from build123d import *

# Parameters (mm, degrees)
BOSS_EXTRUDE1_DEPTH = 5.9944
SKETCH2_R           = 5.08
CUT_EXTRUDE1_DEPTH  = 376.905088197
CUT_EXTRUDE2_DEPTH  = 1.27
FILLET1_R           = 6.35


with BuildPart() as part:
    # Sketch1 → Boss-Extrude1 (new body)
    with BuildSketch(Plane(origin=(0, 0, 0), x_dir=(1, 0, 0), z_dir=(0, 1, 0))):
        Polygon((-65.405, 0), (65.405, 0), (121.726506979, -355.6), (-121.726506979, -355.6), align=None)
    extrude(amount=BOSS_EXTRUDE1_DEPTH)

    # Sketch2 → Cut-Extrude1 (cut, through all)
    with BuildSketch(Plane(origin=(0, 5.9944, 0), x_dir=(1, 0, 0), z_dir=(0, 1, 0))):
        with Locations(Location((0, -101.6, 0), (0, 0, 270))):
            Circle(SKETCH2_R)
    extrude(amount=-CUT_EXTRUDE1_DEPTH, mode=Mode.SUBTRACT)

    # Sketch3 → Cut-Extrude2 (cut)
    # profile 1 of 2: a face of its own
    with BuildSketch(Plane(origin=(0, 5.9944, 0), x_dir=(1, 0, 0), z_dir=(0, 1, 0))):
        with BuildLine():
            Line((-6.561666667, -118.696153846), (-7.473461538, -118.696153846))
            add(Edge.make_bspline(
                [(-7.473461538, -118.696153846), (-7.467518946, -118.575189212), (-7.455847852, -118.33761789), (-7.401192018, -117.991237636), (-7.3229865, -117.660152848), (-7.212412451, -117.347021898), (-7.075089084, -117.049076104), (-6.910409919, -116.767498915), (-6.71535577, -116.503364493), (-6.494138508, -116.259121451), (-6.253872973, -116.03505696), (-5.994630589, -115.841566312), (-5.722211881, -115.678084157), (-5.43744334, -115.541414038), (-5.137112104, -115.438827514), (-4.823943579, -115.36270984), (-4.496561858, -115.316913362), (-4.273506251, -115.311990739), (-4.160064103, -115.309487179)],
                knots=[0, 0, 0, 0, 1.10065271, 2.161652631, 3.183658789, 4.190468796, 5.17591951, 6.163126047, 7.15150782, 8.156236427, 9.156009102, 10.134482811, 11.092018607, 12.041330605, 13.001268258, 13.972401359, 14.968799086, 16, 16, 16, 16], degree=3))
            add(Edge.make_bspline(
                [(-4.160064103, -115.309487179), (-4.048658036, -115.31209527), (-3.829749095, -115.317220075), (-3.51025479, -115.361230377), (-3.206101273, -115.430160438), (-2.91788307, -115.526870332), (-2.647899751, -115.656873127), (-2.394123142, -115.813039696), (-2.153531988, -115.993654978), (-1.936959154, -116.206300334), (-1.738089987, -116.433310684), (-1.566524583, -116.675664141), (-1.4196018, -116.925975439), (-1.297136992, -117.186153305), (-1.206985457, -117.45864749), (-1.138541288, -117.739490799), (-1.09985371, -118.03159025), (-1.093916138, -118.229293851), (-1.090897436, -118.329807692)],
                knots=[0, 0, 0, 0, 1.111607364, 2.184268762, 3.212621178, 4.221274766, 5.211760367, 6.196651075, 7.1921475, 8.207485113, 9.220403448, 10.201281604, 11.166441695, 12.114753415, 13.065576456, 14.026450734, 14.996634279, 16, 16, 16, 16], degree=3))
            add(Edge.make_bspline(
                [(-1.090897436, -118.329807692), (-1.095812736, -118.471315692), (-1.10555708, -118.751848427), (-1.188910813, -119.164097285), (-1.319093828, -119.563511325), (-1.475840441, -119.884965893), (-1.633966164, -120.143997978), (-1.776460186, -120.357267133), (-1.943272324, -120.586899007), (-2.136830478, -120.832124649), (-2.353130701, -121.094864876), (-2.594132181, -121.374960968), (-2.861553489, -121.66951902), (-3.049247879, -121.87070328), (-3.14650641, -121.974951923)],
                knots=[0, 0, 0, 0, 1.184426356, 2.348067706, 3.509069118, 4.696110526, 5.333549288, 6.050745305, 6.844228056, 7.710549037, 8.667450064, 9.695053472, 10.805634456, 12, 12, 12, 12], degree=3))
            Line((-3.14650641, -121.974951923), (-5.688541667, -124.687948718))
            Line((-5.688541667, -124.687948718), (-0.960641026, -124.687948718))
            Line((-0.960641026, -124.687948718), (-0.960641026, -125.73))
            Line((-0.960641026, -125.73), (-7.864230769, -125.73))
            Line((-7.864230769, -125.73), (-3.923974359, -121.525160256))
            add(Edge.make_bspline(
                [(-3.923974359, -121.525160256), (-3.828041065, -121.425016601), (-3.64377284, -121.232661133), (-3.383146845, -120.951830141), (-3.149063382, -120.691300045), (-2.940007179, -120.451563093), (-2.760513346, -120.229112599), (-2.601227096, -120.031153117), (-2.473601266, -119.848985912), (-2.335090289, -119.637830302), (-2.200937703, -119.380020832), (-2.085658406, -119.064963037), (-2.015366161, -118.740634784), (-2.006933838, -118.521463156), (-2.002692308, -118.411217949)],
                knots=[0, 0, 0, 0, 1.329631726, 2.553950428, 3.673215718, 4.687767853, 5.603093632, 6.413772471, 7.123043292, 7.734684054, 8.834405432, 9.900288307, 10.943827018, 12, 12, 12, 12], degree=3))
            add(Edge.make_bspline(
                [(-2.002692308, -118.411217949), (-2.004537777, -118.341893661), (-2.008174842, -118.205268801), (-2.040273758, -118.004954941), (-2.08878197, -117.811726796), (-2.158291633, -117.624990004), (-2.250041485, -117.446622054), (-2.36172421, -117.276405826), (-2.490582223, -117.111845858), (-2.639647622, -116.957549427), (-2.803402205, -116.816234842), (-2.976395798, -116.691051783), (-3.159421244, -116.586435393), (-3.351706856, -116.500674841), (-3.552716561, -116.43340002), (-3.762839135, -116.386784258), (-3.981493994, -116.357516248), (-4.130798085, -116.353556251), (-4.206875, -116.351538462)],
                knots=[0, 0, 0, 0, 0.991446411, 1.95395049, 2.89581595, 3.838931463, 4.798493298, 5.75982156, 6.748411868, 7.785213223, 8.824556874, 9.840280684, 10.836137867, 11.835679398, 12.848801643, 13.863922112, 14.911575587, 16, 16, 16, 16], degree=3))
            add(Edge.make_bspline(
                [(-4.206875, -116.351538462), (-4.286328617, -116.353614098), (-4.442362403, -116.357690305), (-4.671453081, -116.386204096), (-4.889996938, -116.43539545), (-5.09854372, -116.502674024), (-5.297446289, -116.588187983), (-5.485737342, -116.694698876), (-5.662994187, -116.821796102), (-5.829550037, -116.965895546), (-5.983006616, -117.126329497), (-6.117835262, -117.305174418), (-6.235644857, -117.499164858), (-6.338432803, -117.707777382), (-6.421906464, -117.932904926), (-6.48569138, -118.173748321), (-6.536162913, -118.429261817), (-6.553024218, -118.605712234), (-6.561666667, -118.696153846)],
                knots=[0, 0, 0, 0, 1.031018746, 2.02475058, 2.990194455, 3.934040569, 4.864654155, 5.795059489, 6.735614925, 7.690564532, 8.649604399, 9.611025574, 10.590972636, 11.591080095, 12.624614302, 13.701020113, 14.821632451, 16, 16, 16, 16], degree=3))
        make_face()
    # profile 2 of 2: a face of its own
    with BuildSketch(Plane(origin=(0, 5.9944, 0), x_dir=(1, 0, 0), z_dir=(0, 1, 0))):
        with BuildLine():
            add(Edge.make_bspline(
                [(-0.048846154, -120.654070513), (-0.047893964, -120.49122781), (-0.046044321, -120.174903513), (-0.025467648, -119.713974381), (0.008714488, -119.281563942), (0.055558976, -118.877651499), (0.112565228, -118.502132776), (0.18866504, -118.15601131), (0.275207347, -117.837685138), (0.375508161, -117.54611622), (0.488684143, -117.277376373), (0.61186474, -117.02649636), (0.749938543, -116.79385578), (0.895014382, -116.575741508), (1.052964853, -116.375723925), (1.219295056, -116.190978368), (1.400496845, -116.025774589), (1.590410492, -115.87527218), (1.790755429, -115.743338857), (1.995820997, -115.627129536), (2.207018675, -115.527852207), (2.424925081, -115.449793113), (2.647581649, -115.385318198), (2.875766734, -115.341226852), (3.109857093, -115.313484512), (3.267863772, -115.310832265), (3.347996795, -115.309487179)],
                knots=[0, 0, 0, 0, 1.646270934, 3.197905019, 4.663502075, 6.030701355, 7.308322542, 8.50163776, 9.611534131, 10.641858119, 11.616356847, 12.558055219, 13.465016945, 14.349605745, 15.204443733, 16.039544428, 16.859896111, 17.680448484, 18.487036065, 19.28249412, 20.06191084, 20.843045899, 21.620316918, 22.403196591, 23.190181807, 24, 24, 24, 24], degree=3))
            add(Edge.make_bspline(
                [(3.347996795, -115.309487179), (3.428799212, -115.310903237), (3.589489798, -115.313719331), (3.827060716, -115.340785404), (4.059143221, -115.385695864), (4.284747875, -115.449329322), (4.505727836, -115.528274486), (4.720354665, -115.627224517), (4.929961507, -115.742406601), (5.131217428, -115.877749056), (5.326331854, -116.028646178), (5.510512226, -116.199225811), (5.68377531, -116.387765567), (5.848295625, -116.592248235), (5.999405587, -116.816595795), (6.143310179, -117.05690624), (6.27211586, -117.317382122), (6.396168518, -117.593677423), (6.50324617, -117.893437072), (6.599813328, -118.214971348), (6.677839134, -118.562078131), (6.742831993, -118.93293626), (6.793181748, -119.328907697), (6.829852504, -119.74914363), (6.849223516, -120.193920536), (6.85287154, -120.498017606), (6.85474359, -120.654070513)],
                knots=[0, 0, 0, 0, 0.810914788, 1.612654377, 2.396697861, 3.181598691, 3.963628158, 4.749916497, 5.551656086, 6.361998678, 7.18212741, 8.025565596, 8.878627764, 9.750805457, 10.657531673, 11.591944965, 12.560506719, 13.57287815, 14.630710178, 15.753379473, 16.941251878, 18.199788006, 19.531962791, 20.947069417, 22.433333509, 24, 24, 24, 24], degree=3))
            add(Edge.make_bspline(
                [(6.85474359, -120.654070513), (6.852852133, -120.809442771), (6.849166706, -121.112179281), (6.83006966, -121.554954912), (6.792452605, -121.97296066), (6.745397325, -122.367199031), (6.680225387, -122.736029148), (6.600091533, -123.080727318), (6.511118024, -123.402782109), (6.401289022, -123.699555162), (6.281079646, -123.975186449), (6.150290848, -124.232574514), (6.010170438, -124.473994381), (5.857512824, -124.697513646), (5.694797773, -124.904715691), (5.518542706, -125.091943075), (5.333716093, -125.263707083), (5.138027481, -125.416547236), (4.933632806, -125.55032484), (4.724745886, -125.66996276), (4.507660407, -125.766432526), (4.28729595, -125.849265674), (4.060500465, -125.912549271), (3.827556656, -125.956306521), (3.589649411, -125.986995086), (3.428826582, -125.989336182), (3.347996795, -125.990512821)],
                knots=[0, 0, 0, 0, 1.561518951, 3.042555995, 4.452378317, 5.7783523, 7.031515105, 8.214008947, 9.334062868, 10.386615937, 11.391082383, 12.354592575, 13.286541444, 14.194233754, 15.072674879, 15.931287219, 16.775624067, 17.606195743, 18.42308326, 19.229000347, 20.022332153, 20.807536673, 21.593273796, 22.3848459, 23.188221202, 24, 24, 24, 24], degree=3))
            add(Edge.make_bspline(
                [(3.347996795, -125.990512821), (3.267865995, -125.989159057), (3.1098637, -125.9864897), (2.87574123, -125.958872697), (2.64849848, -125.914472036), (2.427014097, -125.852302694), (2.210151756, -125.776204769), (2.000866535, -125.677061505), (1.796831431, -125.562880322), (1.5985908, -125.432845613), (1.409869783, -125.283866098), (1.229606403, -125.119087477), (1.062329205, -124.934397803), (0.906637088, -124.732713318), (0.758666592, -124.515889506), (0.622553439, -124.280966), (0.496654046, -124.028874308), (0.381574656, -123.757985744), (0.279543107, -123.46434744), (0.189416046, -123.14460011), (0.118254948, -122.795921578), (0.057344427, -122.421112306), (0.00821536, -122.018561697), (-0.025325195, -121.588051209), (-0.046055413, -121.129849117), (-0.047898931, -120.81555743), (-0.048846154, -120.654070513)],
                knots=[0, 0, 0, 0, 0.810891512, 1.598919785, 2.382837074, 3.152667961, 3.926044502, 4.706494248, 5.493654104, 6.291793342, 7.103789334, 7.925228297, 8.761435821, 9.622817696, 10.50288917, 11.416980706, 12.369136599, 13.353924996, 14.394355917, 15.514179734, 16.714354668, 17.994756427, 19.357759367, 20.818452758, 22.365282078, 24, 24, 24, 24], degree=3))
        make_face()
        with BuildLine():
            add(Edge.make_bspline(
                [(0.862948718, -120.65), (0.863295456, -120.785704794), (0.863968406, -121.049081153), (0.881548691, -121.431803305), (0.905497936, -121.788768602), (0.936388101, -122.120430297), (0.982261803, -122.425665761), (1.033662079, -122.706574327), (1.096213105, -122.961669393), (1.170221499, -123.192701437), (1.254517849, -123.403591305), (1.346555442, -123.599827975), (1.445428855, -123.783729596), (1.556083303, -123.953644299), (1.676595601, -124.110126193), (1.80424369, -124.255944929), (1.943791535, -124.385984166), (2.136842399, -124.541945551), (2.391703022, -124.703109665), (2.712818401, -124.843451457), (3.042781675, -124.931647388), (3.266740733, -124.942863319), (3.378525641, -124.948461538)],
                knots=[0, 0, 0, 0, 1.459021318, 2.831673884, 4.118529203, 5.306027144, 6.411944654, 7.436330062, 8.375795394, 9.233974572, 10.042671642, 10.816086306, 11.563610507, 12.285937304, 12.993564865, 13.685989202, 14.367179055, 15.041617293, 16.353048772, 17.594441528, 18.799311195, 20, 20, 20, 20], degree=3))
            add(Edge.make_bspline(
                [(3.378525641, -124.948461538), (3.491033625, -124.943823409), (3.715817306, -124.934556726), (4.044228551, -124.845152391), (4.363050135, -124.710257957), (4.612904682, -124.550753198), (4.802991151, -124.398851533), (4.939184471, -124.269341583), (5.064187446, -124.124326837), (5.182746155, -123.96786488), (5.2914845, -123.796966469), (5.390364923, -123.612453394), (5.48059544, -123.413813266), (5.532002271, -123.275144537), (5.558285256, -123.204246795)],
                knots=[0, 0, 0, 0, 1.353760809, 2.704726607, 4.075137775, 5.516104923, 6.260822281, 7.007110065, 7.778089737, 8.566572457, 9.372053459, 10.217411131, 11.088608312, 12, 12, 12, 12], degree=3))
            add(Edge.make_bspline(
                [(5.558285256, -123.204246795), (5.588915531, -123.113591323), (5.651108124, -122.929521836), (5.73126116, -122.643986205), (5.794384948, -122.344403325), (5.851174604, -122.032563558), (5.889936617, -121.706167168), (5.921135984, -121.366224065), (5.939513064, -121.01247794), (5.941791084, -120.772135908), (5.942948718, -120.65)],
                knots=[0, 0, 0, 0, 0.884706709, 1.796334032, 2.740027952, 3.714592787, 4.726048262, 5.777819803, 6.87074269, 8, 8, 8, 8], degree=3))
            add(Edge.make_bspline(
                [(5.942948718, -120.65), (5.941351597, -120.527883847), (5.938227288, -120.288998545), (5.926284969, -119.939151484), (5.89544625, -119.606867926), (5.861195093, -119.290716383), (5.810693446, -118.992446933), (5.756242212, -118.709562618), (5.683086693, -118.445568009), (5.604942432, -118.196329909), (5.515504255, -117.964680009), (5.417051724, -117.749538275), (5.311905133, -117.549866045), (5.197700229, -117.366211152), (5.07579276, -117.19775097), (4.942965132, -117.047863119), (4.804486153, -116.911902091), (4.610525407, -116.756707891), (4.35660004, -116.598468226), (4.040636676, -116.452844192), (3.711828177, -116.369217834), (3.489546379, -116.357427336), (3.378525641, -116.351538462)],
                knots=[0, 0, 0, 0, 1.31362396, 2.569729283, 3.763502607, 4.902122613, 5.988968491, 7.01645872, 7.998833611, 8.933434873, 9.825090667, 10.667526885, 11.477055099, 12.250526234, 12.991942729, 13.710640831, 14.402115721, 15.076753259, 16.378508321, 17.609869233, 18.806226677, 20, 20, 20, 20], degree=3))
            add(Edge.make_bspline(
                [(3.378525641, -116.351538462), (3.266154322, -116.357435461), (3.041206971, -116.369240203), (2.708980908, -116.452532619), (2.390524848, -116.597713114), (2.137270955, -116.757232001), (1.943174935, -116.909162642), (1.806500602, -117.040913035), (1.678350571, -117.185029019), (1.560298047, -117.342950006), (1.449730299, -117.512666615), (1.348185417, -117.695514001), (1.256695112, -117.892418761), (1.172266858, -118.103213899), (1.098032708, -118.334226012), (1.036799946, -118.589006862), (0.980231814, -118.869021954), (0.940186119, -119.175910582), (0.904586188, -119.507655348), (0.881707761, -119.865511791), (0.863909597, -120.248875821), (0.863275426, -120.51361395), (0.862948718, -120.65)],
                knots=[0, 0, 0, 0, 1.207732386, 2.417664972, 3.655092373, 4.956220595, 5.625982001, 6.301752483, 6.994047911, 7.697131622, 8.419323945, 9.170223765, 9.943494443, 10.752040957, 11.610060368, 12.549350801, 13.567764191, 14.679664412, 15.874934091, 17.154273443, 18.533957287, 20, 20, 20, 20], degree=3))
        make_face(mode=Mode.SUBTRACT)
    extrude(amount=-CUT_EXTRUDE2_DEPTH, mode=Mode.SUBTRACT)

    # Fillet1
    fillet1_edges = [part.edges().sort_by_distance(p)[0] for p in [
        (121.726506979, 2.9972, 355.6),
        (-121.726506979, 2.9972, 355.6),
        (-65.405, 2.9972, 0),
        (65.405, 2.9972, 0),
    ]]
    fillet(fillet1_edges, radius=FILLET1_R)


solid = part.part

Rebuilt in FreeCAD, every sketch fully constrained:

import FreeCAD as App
import Part
import Sketcher

V = App.Vector
Q = App.Units.Quantity


def edges_at(feature, points):
    """Names of the edges that pass closest to the given points."""
    edges = feature.Shape.Edges
    near = lambda p: min(range(len(edges)), key=lambda i: edges[i].distToShape(Part.Vertex(*p))[0])
    return sorted({f"Edge{near(p) + 1}" for p in points})


def add_polygon(sketch, points):
    """Adds a closed chain of lines whose ends are joined by coincident constraints."""
    first, n = sketch.GeometryCount, len(points)
    for a, b in zip(points, points[1:] + points[:1]):
        sketch.addGeometry(Part.LineSegment(App.Vector(*a, 0), App.Vector(*b, 0)), False)
    for i in range(n):
        sketch.addConstraint(Sketcher.Constraint("Coincident", first + i, 2, first + (i + 1) % n, 1))

doc = App.newDocument("Part")
body = doc.addObject("PartDesign::Body", "Body")

# Sketch on XZ plane
sketch1 = doc.addObject("Sketcher::SketchObject", "Sketch")
body.addObject(sketch1)
sketch1.AttachmentSupport = (doc.XZ_Plane, [""])
sketch1.MapMode = "FlatFace"
add_polygon(sketch1, [(65, 0), (-65, 0), (-122, 356), (122, 356)])  # lines 0-3
sketch1.addConstraint([
    Sketcher.Constraint("Horizontal", 0),
    Sketcher.Constraint("Horizontal", 2),
    Sketcher.Constraint("Symmetric", 0, 2, 3, 2, -1, 1),
    Sketcher.Constraint("Equal", 1, 3),
    Sketcher.Constraint("DistanceY", -1, 1, 1, 2, Q("14 in")),
    Sketcher.Constraint("Angle", 1, Q("99 deg")),
    Sketcher.Constraint("DistanceX", 0, 2, 0, 1, Q("5.15 in")),
])
pad1 = doc.addObject("PartDesign::Pad", "Pad")
body.addObject(pad1)
pad1.Profile = sketch1
pad1.Length = Q("0.236 in")
pad1.Reversed = True

# Sketch on XZ plane
sketch2 = doc.addObject("Sketcher::SketchObject", "Sketch001")
body.addObject(sketch2)
sketch2.AttachmentSupport = (doc.XZ_Plane, [""])
sketch2.MapMode = "FlatFace"
sketch2.AttachmentOffset = App.Placement(V(0, 0, -0.236 * 25.4), App.Rotation())
sketch2.addGeometry(Part.Circle(V(0, 102, 0), V(0, 0, 1), 5), False)
sketch2.addConstraint([
    Sketcher.Constraint("PointOnObject", 0, 3, -2),
    Sketcher.Constraint("Diameter", 0, Q("0.4 in")),
    Sketcher.Constraint("DistanceY", -1, 1, 0, 3, Q("4 in")),
])
pocket1 = doc.addObject("PartDesign::Pocket", "Pocket")
body.addObject(pocket1)
pocket1.Profile = sketch2
pocket1.Type = "ThroughAll"
pocket1.Reversed = True

# Sketch on XZ plane
sketch3 = doc.addObject("Sketcher::SketchObject", "Sketch002")
body.addObject(sketch3)
sketch3.AttachmentSupport = (doc.XZ_Plane, [""])
sketch3.MapMode = "FlatFace"
sketch3.AttachmentOffset = App.Placement(V(0, 0, -0.236 * 25.4), App.Rotation())
sketch3.addGeometry([
    Part.LineSegment(V(-7.473462, 118.696154, 0), V(-6.561667, 118.696154, 0)),  # 0
    Part.BSplineCurve([V(-4.206875, 116.351538, 0), V(-4.286329, 116.353614, 0), V(-4.442362, 116.35769, 0), V(-4.671453, 116.386204, 0), V(-4.889997, 116.435395, 0), V(-5.098544, 116.502674, 0), V(-5.297446, 116.588188, 0), V(-5.485737, 116.694699, 0), V(-5.662994, 116.821796, 0), V(-5.82955, 116.965896, 0), V(-5.983007, 117.126329, 0), V(-6.117835, 117.305174, 0), V(-6.235645, 117.499165, 0), V(-6.338433, 117.707777, 0), V(-6.421906, 117.932905, 0), V(-6.485691, 118.173748, 0), V(-6.536163, 118.429262, 0), V(-6.553024, 118.605712, 0), V(-6.561667, 118.696154, 0)], [4, 1, 1, 1, 1, 1, 1, 1, 1, 1, 1, 1, 1, 1, 1, 1, 4], [0, 1.031018746, 2.02475058, 2.990194455, 3.934040569, 4.864654155, 5.795059489, 6.735614925, 7.690564532, 8.649604399, 9.611025574, 10.590972636, 11.591080095, 12.624614302, 13.701020113, 14.821632451, 16], False, 3, [1, 1, 1, 1, 1, 1, 1, 1, 1, 1, 1, 1, 1, 1, 1, 1, 1, 1, 1], False),  # 1
    Part.BSplineCurve([V(-2.002692, 118.411218, 0), V(-2.004538, 118.341894, 0), V(-2.008175, 118.205269, 0), V(-2.040274, 118.004955, 0), V(-2.088782, 117.811727, 0), V(-2.158292, 117.62499, 0), V(-2.250041, 117.446622, 0), V(-2.361724, 117.276406, 0), V(-2.490582, 117.111846, 0), V(-2.639648, 116.957549, 0), V(-2.803402, 116.816235, 0), V(-2.976396, 116.691052, 0), V(-3.159421, 116.586435, 0), V(-3.351707, 116.500675, 0), V(-3.552717, 116.4334, 0), V(-3.762839, 116.386784, 0), V(-3.981494, 116.357516, 0), V(-4.130798, 116.353556, 0), V(-4.206875, 116.351538, 0)], [4, 1, 1, 1, 1, 1, 1, 1, 1, 1, 1, 1, 1, 1, 1, 1, 4], [0, 0.991446411, 1.95395049, 2.89581595, 3.838931463, 4.798493298, 5.75982156, 6.748411868, 7.785213223, 8.824556874, 9.840280684, 10.836137867, 11.835679398, 12.848801643, 13.863922112, 14.911575587, 16], False, 3, [1, 1, 1, 1, 1, 1, 1, 1, 1, 1, 1, 1, 1, 1, 1, 1, 1, 1, 1], False),  # 2
    Part.BSplineCurve([V(-3.923974, 121.52516, 0), V(-3.828041, 121.425017, 0), V(-3.643773, 121.232661, 0), V(-3.383147, 120.95183, 0), V(-3.149063, 120.6913, 0), V(-2.940007, 120.451563, 0), V(-2.760513, 120.229113, 0), V(-2.601227, 120.031153, 0), V(-2.473601, 119.848986, 0), V(-2.33509, 119.63783, 0), V(-2.200938, 119.380021, 0), V(-2.085658, 119.064963, 0), V(-2.015366, 118.740635, 0), V(-2.006934, 118.521463, 0), V(-2.002692, 118.411218, 0)], [4, 1, 1, 1, 1, 1, 1, 1, 1, 1, 1, 1, 4], [0, 1.329631726, 2.553950428, 3.673215718, 4.687767853, 5.603093632, 6.413772471, 7.123043292, 7.734684054, 8.834405432, 9.900288307, 10.943827018, 12], False, 3, [1, 1, 1, 1, 1, 1, 1, 1, 1, 1, 1, 1, 1, 1, 1], False),  # 3
    Part.LineSegment(V(-3.923974, 121.52516, 0), V(-7.864231, 125.73, 0)),  # 4
    Part.LineSegment(V(-7.864231, 125.73, 0), V(-0.960641, 125.73, 0)),  # 5
    Part.LineSegment(V(-0.960641, 125.73, 0), V(-0.960641, 124.687949, 0)),  # 6
    Part.LineSegment(V(-0.960641, 124.687949, 0), V(-5.688542, 124.687949, 0)),  # 7
    Part.LineSegment(V(-5.688542, 124.687949, 0), V(-3.146506, 121.974952, 0)),  # 8
    Part.BSplineCurve([V(-1.090897, 118.329808, 0), V(-1.095813, 118.471316, 0), V(-1.105557, 118.751848, 0), V(-1.188911, 119.164097, 0), V(-1.319094, 119.563511, 0), V(-1.47584, 119.884966, 0), V(-1.633966, 120.143998, 0), V(-1.77646, 120.357267, 0), V(-1.943272, 120.586899, 0), V(-2.13683, 120.832125, 0), V(-2.353131, 121.094865, 0), V(-2.594132, 121.374961, 0), V(-2.861553, 121.669519, 0), V(-3.049248, 121.870703, 0), V(-3.146506, 121.974952, 0)], [4, 1, 1, 1, 1, 1, 1, 1, 1, 1, 1, 1, 4], [0, 1.184426356, 2.348067706, 3.509069118, 4.696110526, 5.333549288, 6.050745305, 6.844228056, 7.710549037, 8.667450064, 9.695053472, 10.805634456, 12], False, 3, [1, 1, 1, 1, 1, 1, 1, 1, 1, 1, 1, 1, 1, 1, 1], False),  # 9
    Part.BSplineCurve([V(-4.160064, 115.309487, 0), V(-4.048658, 115.312095, 0), V(-3.829749, 115.31722, 0), V(-3.510255, 115.36123, 0), V(-3.206101, 115.43016, 0), V(-2.917883, 115.52687, 0), V(-2.6479, 115.656873, 0), V(-2.394123, 115.81304, 0), V(-2.153532, 115.993655, 0), V(-1.936959, 116.2063, 0), V(-1.73809, 116.433311, 0), V(-1.566525, 116.675664, 0), V(-1.419602, 116.925975, 0), V(-1.297137, 117.186153, 0), V(-1.206985, 117.458647, 0), V(-1.138541, 117.739491, 0), V(-1.099854, 118.03159, 0), V(-1.093916, 118.229294, 0), V(-1.090897, 118.329808, 0)], [4, 1, 1, 1, 1, 1, 1, 1, 1, 1, 1, 1, 1, 1, 1, 1, 4], [0, 1.111607364, 2.184268762, 3.212621178, 4.221274766, 5.211760367, 6.196651075, 7.1921475, 8.207485113, 9.220403448, 10.201281604, 11.166441695, 12.114753415, 13.065576456, 14.026450734, 14.996634279, 16], False, 3, [1, 1, 1, 1, 1, 1, 1, 1, 1, 1, 1, 1, 1, 1, 1, 1, 1, 1, 1], False),  # 10
    Part.BSplineCurve([V(-7.473462, 118.696154, 0), V(-7.467519, 118.575189, 0), V(-7.455848, 118.337618, 0), V(-7.401192, 117.991238, 0), V(-7.322986, 117.660153, 0), V(-7.212412, 117.347022, 0), V(-7.075089, 117.049076, 0), V(-6.91041, 116.767499, 0), V(-6.715356, 116.503364, 0), V(-6.494139, 116.259121, 0), V(-6.253873, 116.035057, 0), V(-5.994631, 115.841566, 0), V(-5.722212, 115.678084, 0), V(-5.437443, 115.541414, 0), V(-5.137112, 115.438828, 0), V(-4.823944, 115.36271, 0), V(-4.496562, 115.316913, 0), V(-4.273506, 115.311991, 0), V(-4.160064, 115.309487, 0)], [4, 1, 1, 1, 1, 1, 1, 1, 1, 1, 1, 1, 1, 1, 1, 1, 4], [0, 1.10065271, 2.161652631, 3.183658789, 4.190468796, 5.17591951, 6.163126047, 7.15150782, 8.156236427, 9.156009102, 10.134482811, 11.092018607, 12.041330605, 13.001268258, 13.972401359, 14.968799086, 16], False, 3, [1, 1, 1, 1, 1, 1, 1, 1, 1, 1, 1, 1, 1, 1, 1, 1, 1, 1, 1], False),  # 11
    Part.BSplineCurve([V(-0.048846, 120.654071, 0), V(-0.047894, 120.491228, 0), V(-0.046044, 120.174904, 0), V(-0.025468, 119.713974, 0), V(0.008714, 119.281564, 0), V(0.055559, 118.877651, 0), V(0.112565, 118.502133, 0), V(0.188665, 118.156011, 0), V(0.275207, 117.837685, 0), V(0.375508, 117.546116, 0), V(0.488684, 117.277376, 0), V(0.611865, 117.026496, 0), V(0.749939, 116.793856, 0), V(0.895014, 116.575742, 0), V(1.052965, 116.375724, 0), V(1.219295, 116.190978, 0), V(1.400497, 116.025775, 0), V(1.59041, 115.875272, 0), V(1.790755, 115.743339, 0), V(1.995821, 115.62713, 0), V(2.207019, 115.527852, 0), V(2.424925, 115.449793, 0), V(2.647582, 115.385318, 0), V(2.875767, 115.341227, 0), V(3.109857, 115.313485, 0), V(3.267864, 115.310832, 0), V(3.347997, 115.309487, 0)], [4, 1, 1, 1, 1, 1, 1, 1, 1, 1, 1, 1, 1, 1, 1, 1, 1, 1, 1, 1, 1, 1, 1, 1, 4], [0, 1.646270934, 3.197905019, 4.663502075, 6.030701355, 7.308322542, 8.50163776, 9.611534131, 10.641858119, 11.616356847, 12.558055219, 13.465016945, 14.349605745, 15.204443733, 16.039544428, 16.859896111, 17.680448484, 18.487036065, 19.28249412, 20.06191084, 20.843045899, 21.620316918, 22.403196591, 23.190181807, 24], False, 3, [1, 1, 1, 1, 1, 1, 1, 1, 1, 1, 1, 1, 1, 1, 1, 1, 1, 1, 1, 1, 1, 1, 1, 1, 1, 1, 1], False),  # 12
    Part.BSplineCurve([V(3.347997, 125.990513, 0), V(3.267866, 125.989159, 0), V(3.109864, 125.98649, 0), V(2.875741, 125.958873, 0), V(2.648498, 125.914472, 0), V(2.427014, 125.852303, 0), V(2.210152, 125.776205, 0), V(2.000867, 125.677062, 0), V(1.796831, 125.56288, 0), V(1.598591, 125.432846, 0), V(1.40987, 125.283866, 0), V(1.229606, 125.119087, 0), V(1.062329, 124.934398, 0), V(0.906637, 124.732713, 0), V(0.758667, 124.51589, 0), V(0.622553, 124.280966, 0), V(0.496654, 124.028874, 0), V(0.381575, 123.757986, 0), V(0.279543, 123.464347, 0), V(0.189416, 123.1446, 0), V(0.118255, 122.795922, 0), V(0.057344, 122.421112, 0), V(0.008215, 122.018562, 0), V(-0.025325, 121.588051, 0), V(-0.046055, 121.129849, 0), V(-0.047899, 120.815557, 0), V(-0.048846, 120.654071, 0)], [4, 1, 1, 1, 1, 1, 1, 1, 1, 1, 1, 1, 1, 1, 1, 1, 1, 1, 1, 1, 1, 1, 1, 1, 4], [0, 0.810891512, 1.598919785, 2.382837074, 3.152667961, 3.926044502, 4.706494248, 5.493654104, 6.291793342, 7.103789334, 7.925228297, 8.761435821, 9.622817696, 10.50288917, 11.416980706, 12.369136599, 13.353924996, 14.394355917, 15.514179734, 16.714354668, 17.994756427, 19.357759367, 20.818452758, 22.365282078, 24], False, 3, [1, 1, 1, 1, 1, 1, 1, 1, 1, 1, 1, 1, 1, 1, 1, 1, 1, 1, 1, 1, 1, 1, 1, 1, 1, 1, 1], False),  # 13
    Part.BSplineCurve([V(6.854744, 120.654071, 0), V(6.852852, 120.809443, 0), V(6.849167, 121.112179, 0), V(6.83007, 121.554955, 0), V(6.792453, 121.972961, 0), V(6.745397, 122.367199, 0), V(6.680225, 122.736029, 0), V(6.600092, 123.080727, 0), V(6.511118, 123.402782, 0), V(6.401289, 123.699555, 0), V(6.28108, 123.975186, 0), V(6.150291, 124.232575, 0), V(6.01017, 124.473994, 0), V(5.857513, 124.697514, 0), V(5.694798, 124.904716, 0), V(5.518543, 125.091943, 0), V(5.333716, 125.263707, 0), V(5.138027, 125.416547, 0), V(4.933633, 125.550325, 0), V(4.724746, 125.669963, 0), V(4.50766, 125.766433, 0), V(4.287296, 125.849266, 0), V(4.0605, 125.912549, 0), V(3.827557, 125.956307, 0), V(3.589649, 125.986995, 0), V(3.428827, 125.989336, 0), V(3.347997, 125.990513, 0)], [4, 1, 1, 1, 1, 1, 1, 1, 1, 1, 1, 1, 1, 1, 1, 1, 1, 1, 1, 1, 1, 1, 1, 1, 4], [0, 1.561518951, 3.042555995, 4.452378317, 5.7783523, 7.031515105, 8.214008947, 9.334062868, 10.386615937, 11.391082383, 12.354592575, 13.286541444, 14.194233754, 15.072674879, 15.931287219, 16.775624067, 17.606195743, 18.42308326, 19.229000347, 20.022332153, 20.807536673, 21.593273796, 22.3848459, 23.188221202, 24], False, 3, [1, 1, 1, 1, 1, 1, 1, 1, 1, 1, 1, 1, 1, 1, 1, 1, 1, 1, 1, 1, 1, 1, 1, 1, 1, 1, 1], False),  # 14
    Part.BSplineCurve([V(3.347997, 115.309487, 0), V(3.428799, 115.310903, 0), V(3.58949, 115.313719, 0), V(3.827061, 115.340785, 0), V(4.059143, 115.385696, 0), V(4.284748, 115.449329, 0), V(4.505728, 115.528274, 0), V(4.720355, 115.627225, 0), V(4.929962, 115.742407, 0), V(5.131217, 115.877749, 0), V(5.326332, 116.028646, 0), V(5.510512, 116.199226, 0), V(5.683775, 116.387766, 0), V(5.848296, 116.592248, 0), V(5.999406, 116.816596, 0), V(6.14331, 117.056906, 0), V(6.272116, 117.317382, 0), V(6.396169, 117.593677, 0), V(6.503246, 117.893437, 0), V(6.599813, 118.214971, 0), V(6.677839, 118.562078, 0), V(6.742832, 118.932936, 0), V(6.793182, 119.328908, 0), V(6.829853, 119.749144, 0), V(6.849224, 120.193921, 0), V(6.852872, 120.498018, 0), V(6.854744, 120.654071, 0)], [4, 1, 1, 1, 1, 1, 1, 1, 1, 1, 1, 1, 1, 1, 1, 1, 1, 1, 1, 1, 1, 1, 1, 1, 4], [0, 0.810914788, 1.612654377, 2.396697861, 3.181598691, 3.963628158, 4.749916497, 5.551656086, 6.361998678, 7.18212741, 8.025565596, 8.878627764, 9.750805457, 10.657531673, 11.591944965, 12.560506719, 13.57287815, 14.630710178, 15.753379473, 16.941251878, 18.199788006, 19.531962791, 20.947069417, 22.433333509, 24], False, 3, [1, 1, 1, 1, 1, 1, 1, 1, 1, 1, 1, 1, 1, 1, 1, 1, 1, 1, 1, 1, 1, 1, 1, 1, 1, 1, 1], False),  # 15
    Part.BSplineCurve([V(3.378526, 116.351538, 0), V(3.266154, 116.357435, 0), V(3.041207, 116.36924, 0), V(2.708981, 116.452533, 0), V(2.390525, 116.597713, 0), V(2.137271, 116.757232, 0), V(1.943175, 116.909163, 0), V(1.806501, 117.040913, 0), V(1.678351, 117.185029, 0), V(1.560298, 117.34295, 0), V(1.44973, 117.512667, 0), V(1.348185, 117.695514, 0), V(1.256695, 117.892419, 0), V(1.172267, 118.103214, 0), V(1.098033, 118.334226, 0), V(1.0368, 118.589007, 0), V(0.980232, 118.869022, 0), V(0.940186, 119.175911, 0), V(0.904586, 119.507655, 0), V(0.881708, 119.865512, 0), V(0.86391, 120.248876, 0), V(0.863275, 120.513614, 0), V(0.862949, 120.65, 0)], [4, 1, 1, 1, 1, 1, 1, 1, 1, 1, 1, 1, 1, 1, 1, 1, 1, 1, 1, 1, 4], [0, 1.207732386, 2.417664972, 3.655092373, 4.956220595, 5.625982001, 6.301752483, 6.994047911, 7.697131622, 8.419323945, 9.170223765, 9.943494443, 10.752040957, 11.610060368, 12.549350801, 13.567764191, 14.679664412, 15.874934091, 17.154273443, 18.533957287, 20], False, 3, [1, 1, 1, 1, 1, 1, 1, 1, 1, 1, 1, 1, 1, 1, 1, 1, 1, 1, 1, 1, 1, 1, 1], False),  # 16
    Part.BSplineCurve([V(5.942949, 120.65, 0), V(5.941352, 120.527884, 0), V(5.938227, 120.288999, 0), V(5.926285, 119.939151, 0), V(5.895446, 119.606868, 0), V(5.861195, 119.290716, 0), V(5.810693, 118.992447, 0), V(5.756242, 118.709563, 0), V(5.683087, 118.445568, 0), V(5.604942, 118.19633, 0), V(5.515504, 117.96468, 0), V(5.417052, 117.749538, 0), V(5.311905, 117.549866, 0), V(5.1977, 117.366211, 0), V(5.075793, 117.197751, 0), V(4.942965, 117.047863, 0), V(4.804486, 116.911902, 0), V(4.610525, 116.756708, 0), V(4.3566, 116.598468, 0), V(4.040637, 116.452844, 0), V(3.711828, 116.369218, 0), V(3.489546, 116.357427, 0), V(3.378526, 116.351538, 0)], [4, 1, 1, 1, 1, 1, 1, 1, 1, 1, 1, 1, 1, 1, 1, 1, 1, 1, 1, 1, 4], [0, 1.31362396, 2.569729283, 3.763502607, 4.902122613, 5.988968491, 7.01645872, 7.998833611, 8.933434873, 9.825090667, 10.667526885, 11.477055099, 12.250526234, 12.991942729, 13.710640831, 14.402115721, 15.076753259, 16.378508321, 17.609869233, 18.806226677, 20], False, 3, [1, 1, 1, 1, 1, 1, 1, 1, 1, 1, 1, 1, 1, 1, 1, 1, 1, 1, 1, 1, 1, 1, 1], False),  # 17
    Part.BSplineCurve([V(5.558285, 123.204247, 0), V(5.588916, 123.113591, 0), V(5.651108, 122.929522, 0), V(5.731261, 122.643986, 0), V(5.794385, 122.344403, 0), V(5.851175, 122.032564, 0), V(5.889937, 121.706167, 0), V(5.921136, 121.366224, 0), V(5.939513, 121.012478, 0), V(5.941791, 120.772136, 0), V(5.942949, 120.65, 0)], [4, 1, 1, 1, 1, 1, 1, 1, 4], [0, 0.884706709, 1.796334032, 2.740027952, 3.714592787, 4.726048262, 5.777819803, 6.87074269, 8], False, 3, [1, 1, 1, 1, 1, 1, 1, 1, 1, 1, 1], False),  # 18
    Part.BSplineCurve([V(3.378526, 124.948462, 0), V(3.491034, 124.943823, 0), V(3.715817, 124.934557, 0), V(4.044229, 124.845152, 0), V(4.36305, 124.710258, 0), V(4.612905, 124.550753, 0), V(4.802991, 124.398852, 0), V(4.939184, 124.269342, 0), V(5.064187, 124.124327, 0), V(5.182746, 123.967865, 0), V(5.291485, 123.796966, 0), V(5.390365, 123.612453, 0), V(5.480595, 123.413813, 0), V(5.532002, 123.275145, 0), V(5.558285, 123.204247, 0)], [4, 1, 1, 1, 1, 1, 1, 1, 1, 1, 1, 1, 4], [0, 1.353760809, 2.704726607, 4.075137775, 5.516104923, 6.260822281, 7.007110065, 7.778089737, 8.566572457, 9.372053459, 10.217411131, 11.088608312, 12], False, 3, [1, 1, 1, 1, 1, 1, 1, 1, 1, 1, 1, 1, 1, 1, 1], False),  # 19
    Part.BSplineCurve([V(0.862949, 120.65, 0), V(0.863295, 120.785705, 0), V(0.863968, 121.049081, 0), V(0.881549, 121.431803, 0), V(0.905498, 121.788769, 0), V(0.936388, 122.12043, 0), V(0.982262, 122.425666, 0), V(1.033662, 122.706574, 0), V(1.096213, 122.961669, 0), V(1.170221, 123.192701, 0), V(1.254518, 123.403591, 0), V(1.346555, 123.599828, 0), V(1.445429, 123.78373, 0), V(1.556083, 123.953644, 0), V(1.676596, 124.110126, 0), V(1.804244, 124.255945, 0), V(1.943792, 124.385984, 0), V(2.136842, 124.541946, 0), V(2.391703, 124.70311, 0), V(2.712818, 124.843451, 0), V(3.042782, 124.931647, 0), V(3.266741, 124.942863, 0), V(3.378526, 124.948462, 0)], [4, 1, 1, 1, 1, 1, 1, 1, 1, 1, 1, 1, 1, 1, 1, 1, 1, 1, 1, 1, 4], [0, 1.459021318, 2.831673884, 4.118529203, 5.306027144, 6.411944654, 7.436330062, 8.375795394, 9.233974572, 10.042671642, 10.816086306, 11.563610507, 12.285937304, 12.993564865, 13.685989202, 14.367179055, 15.041617293, 16.353048772, 17.594441528, 18.799311195, 20], False, 3, [1, 1, 1, 1, 1, 1, 1, 1, 1, 1, 1, 1, 1, 1, 1, 1, 1, 1, 1, 1, 1, 1, 1], False),  # 20
], False)
sketch3.addConstraint([
    Sketcher.Constraint("Block", 1),
    Sketcher.Constraint("Block", 2),
    Sketcher.Constraint("Block", 3),
    Sketcher.Constraint("Block", 9),
    Sketcher.Constraint("Block", 10),
    Sketcher.Constraint("Block", 11),
    Sketcher.Constraint("Block", 12),
    Sketcher.Constraint("Block", 13),
    Sketcher.Constraint("Block", 14),
    Sketcher.Constraint("Block", 15),
    Sketcher.Constraint("Block", 16),
    Sketcher.Constraint("Block", 17),
    Sketcher.Constraint("Block", 18),
    Sketcher.Constraint("Block", 19),
    Sketcher.Constraint("Block", 20),
    Sketcher.Constraint("Coincident", 0, 2, 1, 2),
    Sketcher.Constraint("Coincident", 3, 1, 4, 1),
    Sketcher.Constraint("Coincident", 4, 2, 5, 1),
    Sketcher.Constraint("Coincident", 5, 2, 6, 1),
    Sketcher.Constraint("Coincident", 6, 2, 7, 1),
    Sketcher.Constraint("Coincident", 7, 2, 8, 1),
    Sketcher.Constraint("Coincident", 8, 2, 9, 2),
    Sketcher.Constraint("Coincident", 11, 1, 0, 1),
    Sketcher.Constraint("Horizontal", 5),
    Sketcher.Constraint("Vertical", 6),
    Sketcher.Constraint("Horizontal", 7),
    Sketcher.Constraint("DistanceY", -1, 1, 4, 2, Q("4.95 in")),
    Sketcher.Constraint("DistanceX", 7, 2, 7, 1, Q("4.727901 mm")),
    Sketcher.Constraint("DistanceX", 5, 1, 5, 2, Q("6.90359 mm")),
    Sketcher.Constraint("DistanceY", 6, 2, 6, 1, Q("1.042051 mm")),
    Sketcher.Constraint("Distance", 4, Q("5.762491 mm")),
])
pocket2 = doc.addObject("PartDesign::Pocket", "Pocket001")
body.addObject(pocket2)
pocket2.Profile = sketch3
pocket2.Length = Q("0.05 in")
pocket2.Reversed = True
doc.recompute()

fillet = doc.addObject("PartDesign::Fillet", "Fillet")
body.addObject(fillet)
fillet.Base = (pocket2, edges_at(pocket2, [
    (121.727, 2.997, 355.6),
    (-121.727, 2.997, 355.6),
    (-65.405, 2.997, 0),
    (65.405, 2.997, 0),
]))
fillet.Radius = Q("0.25 in")

doc.recompute()
